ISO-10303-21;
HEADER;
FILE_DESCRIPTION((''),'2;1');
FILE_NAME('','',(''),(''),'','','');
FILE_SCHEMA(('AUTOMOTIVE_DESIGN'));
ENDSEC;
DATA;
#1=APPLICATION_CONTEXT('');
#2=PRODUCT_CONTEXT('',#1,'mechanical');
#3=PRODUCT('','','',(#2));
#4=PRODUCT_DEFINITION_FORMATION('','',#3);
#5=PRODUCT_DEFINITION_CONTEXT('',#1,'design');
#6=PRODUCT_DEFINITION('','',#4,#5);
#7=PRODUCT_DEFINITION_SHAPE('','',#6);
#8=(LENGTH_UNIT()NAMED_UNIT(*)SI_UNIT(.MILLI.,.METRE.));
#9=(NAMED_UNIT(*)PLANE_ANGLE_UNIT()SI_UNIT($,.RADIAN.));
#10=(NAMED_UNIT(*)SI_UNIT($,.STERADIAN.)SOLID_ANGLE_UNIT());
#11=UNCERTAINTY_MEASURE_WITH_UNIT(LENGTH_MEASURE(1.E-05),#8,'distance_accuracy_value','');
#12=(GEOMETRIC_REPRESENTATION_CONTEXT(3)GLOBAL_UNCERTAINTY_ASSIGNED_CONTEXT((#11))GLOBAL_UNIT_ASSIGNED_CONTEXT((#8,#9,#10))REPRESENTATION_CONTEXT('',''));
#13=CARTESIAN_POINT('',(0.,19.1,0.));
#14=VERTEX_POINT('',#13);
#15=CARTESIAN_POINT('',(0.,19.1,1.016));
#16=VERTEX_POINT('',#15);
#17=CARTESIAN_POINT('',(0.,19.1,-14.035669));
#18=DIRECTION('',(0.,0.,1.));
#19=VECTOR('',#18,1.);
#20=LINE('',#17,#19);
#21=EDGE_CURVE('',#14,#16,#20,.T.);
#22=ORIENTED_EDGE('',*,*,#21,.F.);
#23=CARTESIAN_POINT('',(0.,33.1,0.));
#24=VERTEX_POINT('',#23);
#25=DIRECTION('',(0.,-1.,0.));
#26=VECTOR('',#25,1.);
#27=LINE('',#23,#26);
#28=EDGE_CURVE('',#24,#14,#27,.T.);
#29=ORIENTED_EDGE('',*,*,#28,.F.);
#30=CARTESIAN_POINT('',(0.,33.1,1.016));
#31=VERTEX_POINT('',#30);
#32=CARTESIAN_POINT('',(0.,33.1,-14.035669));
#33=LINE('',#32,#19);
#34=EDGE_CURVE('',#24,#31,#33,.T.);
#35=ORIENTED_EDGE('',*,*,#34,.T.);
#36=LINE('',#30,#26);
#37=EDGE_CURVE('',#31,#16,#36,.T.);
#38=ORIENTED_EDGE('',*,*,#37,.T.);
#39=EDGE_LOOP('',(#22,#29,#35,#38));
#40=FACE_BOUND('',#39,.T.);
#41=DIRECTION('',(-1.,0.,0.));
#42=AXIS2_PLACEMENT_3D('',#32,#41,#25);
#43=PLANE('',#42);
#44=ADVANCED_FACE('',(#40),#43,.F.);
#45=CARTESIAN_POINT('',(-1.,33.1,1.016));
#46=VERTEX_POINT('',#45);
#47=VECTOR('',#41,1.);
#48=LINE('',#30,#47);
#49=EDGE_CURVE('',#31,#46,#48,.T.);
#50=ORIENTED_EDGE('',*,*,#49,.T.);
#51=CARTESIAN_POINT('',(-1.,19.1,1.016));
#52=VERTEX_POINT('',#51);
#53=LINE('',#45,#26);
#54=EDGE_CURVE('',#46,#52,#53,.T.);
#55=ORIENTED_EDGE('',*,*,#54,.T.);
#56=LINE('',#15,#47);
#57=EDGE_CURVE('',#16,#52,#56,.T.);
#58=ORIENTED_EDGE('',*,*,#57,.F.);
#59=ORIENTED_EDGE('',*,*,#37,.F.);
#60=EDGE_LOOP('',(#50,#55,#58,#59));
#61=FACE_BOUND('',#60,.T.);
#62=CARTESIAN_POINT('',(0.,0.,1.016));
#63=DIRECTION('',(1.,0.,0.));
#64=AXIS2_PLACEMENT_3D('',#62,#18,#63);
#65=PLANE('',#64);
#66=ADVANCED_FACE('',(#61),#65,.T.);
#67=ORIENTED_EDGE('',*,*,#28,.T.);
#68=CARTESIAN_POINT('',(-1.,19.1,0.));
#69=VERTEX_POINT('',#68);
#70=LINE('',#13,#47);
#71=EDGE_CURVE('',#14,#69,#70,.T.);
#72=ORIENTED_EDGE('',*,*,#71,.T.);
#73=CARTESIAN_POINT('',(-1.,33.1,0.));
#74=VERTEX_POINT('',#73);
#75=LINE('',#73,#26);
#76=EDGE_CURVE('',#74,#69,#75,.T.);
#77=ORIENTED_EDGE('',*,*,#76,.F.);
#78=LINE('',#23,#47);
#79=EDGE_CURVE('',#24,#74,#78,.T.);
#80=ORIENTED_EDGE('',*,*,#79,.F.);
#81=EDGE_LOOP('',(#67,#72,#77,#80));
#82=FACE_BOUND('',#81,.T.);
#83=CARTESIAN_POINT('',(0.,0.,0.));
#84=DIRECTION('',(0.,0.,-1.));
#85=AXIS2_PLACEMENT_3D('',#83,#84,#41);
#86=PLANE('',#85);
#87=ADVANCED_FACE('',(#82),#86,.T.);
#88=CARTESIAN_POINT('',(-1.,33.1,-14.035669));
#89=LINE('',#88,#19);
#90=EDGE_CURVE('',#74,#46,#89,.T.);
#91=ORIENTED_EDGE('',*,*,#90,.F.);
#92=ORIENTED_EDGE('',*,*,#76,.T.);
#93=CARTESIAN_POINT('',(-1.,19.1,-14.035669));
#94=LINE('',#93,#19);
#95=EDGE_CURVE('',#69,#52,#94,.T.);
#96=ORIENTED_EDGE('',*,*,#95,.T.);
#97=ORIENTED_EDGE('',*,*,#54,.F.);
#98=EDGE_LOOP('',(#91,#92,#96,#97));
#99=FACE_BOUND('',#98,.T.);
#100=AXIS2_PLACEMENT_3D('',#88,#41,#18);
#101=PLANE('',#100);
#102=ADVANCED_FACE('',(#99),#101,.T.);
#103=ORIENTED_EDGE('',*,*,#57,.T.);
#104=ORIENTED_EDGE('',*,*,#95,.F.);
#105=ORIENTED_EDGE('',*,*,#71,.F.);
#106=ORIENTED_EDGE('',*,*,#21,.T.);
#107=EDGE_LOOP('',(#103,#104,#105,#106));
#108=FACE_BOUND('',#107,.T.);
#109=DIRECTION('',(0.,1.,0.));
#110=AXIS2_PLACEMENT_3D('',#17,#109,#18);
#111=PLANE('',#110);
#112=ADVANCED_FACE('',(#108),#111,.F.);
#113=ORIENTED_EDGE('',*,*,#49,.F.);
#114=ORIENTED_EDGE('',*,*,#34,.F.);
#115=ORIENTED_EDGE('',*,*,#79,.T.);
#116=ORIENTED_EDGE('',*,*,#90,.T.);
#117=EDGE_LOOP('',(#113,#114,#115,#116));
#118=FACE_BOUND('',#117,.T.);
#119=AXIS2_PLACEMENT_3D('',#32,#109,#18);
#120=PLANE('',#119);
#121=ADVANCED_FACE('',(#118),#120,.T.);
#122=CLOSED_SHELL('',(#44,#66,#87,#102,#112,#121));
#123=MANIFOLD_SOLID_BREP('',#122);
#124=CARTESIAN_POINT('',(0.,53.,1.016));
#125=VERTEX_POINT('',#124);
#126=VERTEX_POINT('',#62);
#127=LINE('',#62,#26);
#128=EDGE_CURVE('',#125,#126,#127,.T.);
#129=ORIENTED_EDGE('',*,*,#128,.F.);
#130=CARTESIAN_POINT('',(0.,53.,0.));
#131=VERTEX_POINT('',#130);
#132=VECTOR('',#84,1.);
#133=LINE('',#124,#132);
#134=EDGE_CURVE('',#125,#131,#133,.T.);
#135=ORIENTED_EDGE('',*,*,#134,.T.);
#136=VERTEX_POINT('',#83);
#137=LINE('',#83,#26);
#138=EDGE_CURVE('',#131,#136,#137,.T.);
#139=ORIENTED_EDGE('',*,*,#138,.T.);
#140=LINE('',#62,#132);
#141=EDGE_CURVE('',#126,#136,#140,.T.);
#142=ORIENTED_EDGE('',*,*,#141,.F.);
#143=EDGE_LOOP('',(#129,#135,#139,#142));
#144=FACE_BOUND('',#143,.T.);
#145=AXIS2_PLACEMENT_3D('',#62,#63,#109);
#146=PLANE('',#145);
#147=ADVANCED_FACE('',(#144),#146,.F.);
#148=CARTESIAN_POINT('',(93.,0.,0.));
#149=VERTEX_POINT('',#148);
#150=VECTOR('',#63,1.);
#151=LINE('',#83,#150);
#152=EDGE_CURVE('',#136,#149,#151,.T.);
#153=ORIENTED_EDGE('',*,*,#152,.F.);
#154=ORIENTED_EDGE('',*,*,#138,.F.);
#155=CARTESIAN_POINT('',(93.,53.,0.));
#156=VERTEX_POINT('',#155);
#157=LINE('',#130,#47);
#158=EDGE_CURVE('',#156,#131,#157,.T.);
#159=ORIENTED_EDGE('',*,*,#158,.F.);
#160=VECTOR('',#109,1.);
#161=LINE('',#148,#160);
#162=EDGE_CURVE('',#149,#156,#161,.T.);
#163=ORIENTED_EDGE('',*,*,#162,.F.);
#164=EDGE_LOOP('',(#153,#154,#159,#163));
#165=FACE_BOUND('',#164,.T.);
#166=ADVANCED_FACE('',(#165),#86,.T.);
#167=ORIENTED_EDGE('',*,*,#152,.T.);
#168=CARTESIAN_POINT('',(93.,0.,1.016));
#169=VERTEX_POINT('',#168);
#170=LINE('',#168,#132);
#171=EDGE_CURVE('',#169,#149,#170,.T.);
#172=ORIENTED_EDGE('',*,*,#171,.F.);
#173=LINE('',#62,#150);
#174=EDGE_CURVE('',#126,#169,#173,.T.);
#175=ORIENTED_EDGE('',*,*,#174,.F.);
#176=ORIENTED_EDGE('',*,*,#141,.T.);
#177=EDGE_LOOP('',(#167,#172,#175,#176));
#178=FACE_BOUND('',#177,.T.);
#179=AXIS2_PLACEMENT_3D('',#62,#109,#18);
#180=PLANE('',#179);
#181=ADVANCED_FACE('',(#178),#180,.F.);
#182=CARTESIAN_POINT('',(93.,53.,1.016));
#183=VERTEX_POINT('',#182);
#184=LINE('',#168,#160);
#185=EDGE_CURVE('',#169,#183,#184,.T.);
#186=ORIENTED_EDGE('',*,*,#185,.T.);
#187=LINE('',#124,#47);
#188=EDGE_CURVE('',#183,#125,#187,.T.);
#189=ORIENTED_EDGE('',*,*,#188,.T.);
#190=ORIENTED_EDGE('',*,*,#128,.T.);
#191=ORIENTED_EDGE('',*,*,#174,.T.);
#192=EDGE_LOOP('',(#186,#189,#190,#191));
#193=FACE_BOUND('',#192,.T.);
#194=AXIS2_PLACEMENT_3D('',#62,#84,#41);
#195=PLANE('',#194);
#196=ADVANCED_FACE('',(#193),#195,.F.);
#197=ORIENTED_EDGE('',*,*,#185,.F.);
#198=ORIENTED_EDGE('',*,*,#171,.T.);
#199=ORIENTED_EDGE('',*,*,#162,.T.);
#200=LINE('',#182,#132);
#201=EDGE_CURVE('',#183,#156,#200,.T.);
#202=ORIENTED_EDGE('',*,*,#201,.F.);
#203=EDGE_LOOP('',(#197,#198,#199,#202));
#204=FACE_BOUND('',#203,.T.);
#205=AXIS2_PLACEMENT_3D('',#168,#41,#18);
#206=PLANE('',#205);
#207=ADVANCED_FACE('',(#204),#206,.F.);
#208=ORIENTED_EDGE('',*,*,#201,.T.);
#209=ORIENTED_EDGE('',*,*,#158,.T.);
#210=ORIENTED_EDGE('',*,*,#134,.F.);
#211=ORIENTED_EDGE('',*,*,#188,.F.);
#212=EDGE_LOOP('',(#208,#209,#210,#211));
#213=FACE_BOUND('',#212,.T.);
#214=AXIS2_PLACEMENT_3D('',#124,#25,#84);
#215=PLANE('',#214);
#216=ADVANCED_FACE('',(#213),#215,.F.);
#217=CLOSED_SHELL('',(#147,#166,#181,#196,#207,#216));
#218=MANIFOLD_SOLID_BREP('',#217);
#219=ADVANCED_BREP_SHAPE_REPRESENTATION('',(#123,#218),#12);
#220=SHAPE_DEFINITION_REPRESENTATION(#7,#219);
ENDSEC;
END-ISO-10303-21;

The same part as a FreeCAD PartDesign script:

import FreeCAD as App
import Part
import Sketcher
from FreeCAD import Vector
Q = App.Units.Quantity

doc = App.newDocument("Part")
params = doc.addObject("Spreadsheet::Sheet", "Params")
for row, (alias, value) in enumerate([
    ("sketch1_width", "93 mm"),
    ("sketch1_height", "53 mm"),
    ("pad1_length", "1.016 mm"),
    ("sketch2_width", "1 mm"),
    ("sketch2_height", "14 mm"),
    ("pad2_length", "1.016 mm"),
], start=1):
    params.set(f"A{row}", alias)
    params.set(f"B{row}", "=" + value)
    params.setAlias(f"B{row}", alias)

body = doc.addObject("PartDesign::Body", "Body")

# Sketch on XY plane
sketch1 = body.newObject("Sketcher::SketchObject", "Sketch")
sketch1.AttachmentSupport = (doc.getObject("XY_Plane"), [""])
sketch1.MapMode = "FlatFace"
sketch1.addGeometry([
    Part.LineSegment(Vector(0, 53, 0), Vector(0, 0, 0)),
    Part.LineSegment(Vector(0, 0, 0), Vector(93, 0, 0)),
    Part.LineSegment(Vector(93, 0, 0), Vector(93, 53, 0)),
    Part.LineSegment(Vector(93, 53, 0), Vector(0, 53, 0)),
], False)
sketch1.addConstraint([
    Sketcher.Constraint("Coincident", 0, 2, 1, 1),
    Sketcher.Constraint("Coincident", 1, 2, 2, 1),
    Sketcher.Constraint("Coincident", 2, 2, 3, 1),
    Sketcher.Constraint("Coincident", 3, 2, 0, 1),
    Sketcher.Constraint("Vertical", 0),
    Sketcher.Constraint("Horizontal", 1),
    Sketcher.Constraint("Vertical", 2),
    Sketcher.Constraint("Horizontal", 3),
    Sketcher.Constraint("Coincident", 0, 2, -1, 1),
    Sketcher.Constraint("DistanceX", 1, 1, 1, 2, Q("93 mm")),
    Sketcher.Constraint("DistanceY", 0, 2, 0, 1, Q("53 mm")),
])
sketch1.setExpression("Constraints[9]", "Params.sketch1_width")
sketch1.setExpression("Constraints[10]", "Params.sketch1_height")
pad1 = body.newObject("PartDesign::Pad", "Pad")
pad1.Profile = sketch1
pad1.setExpression("Length", "Params.pad1_length")
body2 = doc.addObject("PartDesign::Body", "Body001")

# Sketch on XY plane
sketch2 = body2.newObject("Sketcher::SketchObject", "Sketch001")
sketch2.AttachmentSupport = (doc.getObject("XY_Plane001"), [""])
sketch2.MapMode = "FlatFace"
sketch2.AttachmentOffset = App.Placement(Vector(0, 0, 1.016), App.Rotation())
sketch2.addGeometry([
    Part.LineSegment(Vector(-1, 33.1, 0), Vector(-1, 19.1, 0)),
    Part.LineSegment(Vector(-1, 19.1, 0), Vector(0, 19.1, 0)),
    Part.LineSegment(Vector(0, 19.1, 0), Vector(0, 33.1, 0)),
    Part.LineSegment(Vector(0, 33.1, 0), Vector(-1, 33.1, 0)),
], False)
sketch2.addConstraint([
    Sketcher.Constraint("Coincident", 0, 2, 1, 1),
    Sketcher.Constraint("Coincident", 1, 2, 2, 1),
    Sketcher.Constraint("Coincident", 2, 2, 3, 1),
    Sketcher.Constraint("Coincident", 3, 2, 0, 1),
    Sketcher.Constraint("Vertical", 0),
    Sketcher.Constraint("Horizontal", 1),
    Sketcher.Constraint("Vertical", 2),
    Sketcher.Constraint("Horizontal", 3),
    Sketcher.Constraint("PointOnObject", 1, 2, -2),
    Sketcher.Constraint("DistanceX", 1, 1, 1, 2, Q("1 mm")),
    Sketcher.Constraint("DistanceY", 0, 2, 0, 1, Q("14 mm")),
    Sketcher.Constraint("DistanceY", -1, 1, 0, 2, Q("19.1 mm")),
])
sketch2.setExpression("Constraints[9]", "Params.sketch2_width")
sketch2.setExpression("Constraints[10]", "Params.sketch2_height")
pad2 = body2.newObject("PartDesign::Pad", "Pad001")
pad2.Profile = sketch2
pad2.setExpression("Length", "Params.pad2_length")
pad2.Reversed = True

doc.recompute()
